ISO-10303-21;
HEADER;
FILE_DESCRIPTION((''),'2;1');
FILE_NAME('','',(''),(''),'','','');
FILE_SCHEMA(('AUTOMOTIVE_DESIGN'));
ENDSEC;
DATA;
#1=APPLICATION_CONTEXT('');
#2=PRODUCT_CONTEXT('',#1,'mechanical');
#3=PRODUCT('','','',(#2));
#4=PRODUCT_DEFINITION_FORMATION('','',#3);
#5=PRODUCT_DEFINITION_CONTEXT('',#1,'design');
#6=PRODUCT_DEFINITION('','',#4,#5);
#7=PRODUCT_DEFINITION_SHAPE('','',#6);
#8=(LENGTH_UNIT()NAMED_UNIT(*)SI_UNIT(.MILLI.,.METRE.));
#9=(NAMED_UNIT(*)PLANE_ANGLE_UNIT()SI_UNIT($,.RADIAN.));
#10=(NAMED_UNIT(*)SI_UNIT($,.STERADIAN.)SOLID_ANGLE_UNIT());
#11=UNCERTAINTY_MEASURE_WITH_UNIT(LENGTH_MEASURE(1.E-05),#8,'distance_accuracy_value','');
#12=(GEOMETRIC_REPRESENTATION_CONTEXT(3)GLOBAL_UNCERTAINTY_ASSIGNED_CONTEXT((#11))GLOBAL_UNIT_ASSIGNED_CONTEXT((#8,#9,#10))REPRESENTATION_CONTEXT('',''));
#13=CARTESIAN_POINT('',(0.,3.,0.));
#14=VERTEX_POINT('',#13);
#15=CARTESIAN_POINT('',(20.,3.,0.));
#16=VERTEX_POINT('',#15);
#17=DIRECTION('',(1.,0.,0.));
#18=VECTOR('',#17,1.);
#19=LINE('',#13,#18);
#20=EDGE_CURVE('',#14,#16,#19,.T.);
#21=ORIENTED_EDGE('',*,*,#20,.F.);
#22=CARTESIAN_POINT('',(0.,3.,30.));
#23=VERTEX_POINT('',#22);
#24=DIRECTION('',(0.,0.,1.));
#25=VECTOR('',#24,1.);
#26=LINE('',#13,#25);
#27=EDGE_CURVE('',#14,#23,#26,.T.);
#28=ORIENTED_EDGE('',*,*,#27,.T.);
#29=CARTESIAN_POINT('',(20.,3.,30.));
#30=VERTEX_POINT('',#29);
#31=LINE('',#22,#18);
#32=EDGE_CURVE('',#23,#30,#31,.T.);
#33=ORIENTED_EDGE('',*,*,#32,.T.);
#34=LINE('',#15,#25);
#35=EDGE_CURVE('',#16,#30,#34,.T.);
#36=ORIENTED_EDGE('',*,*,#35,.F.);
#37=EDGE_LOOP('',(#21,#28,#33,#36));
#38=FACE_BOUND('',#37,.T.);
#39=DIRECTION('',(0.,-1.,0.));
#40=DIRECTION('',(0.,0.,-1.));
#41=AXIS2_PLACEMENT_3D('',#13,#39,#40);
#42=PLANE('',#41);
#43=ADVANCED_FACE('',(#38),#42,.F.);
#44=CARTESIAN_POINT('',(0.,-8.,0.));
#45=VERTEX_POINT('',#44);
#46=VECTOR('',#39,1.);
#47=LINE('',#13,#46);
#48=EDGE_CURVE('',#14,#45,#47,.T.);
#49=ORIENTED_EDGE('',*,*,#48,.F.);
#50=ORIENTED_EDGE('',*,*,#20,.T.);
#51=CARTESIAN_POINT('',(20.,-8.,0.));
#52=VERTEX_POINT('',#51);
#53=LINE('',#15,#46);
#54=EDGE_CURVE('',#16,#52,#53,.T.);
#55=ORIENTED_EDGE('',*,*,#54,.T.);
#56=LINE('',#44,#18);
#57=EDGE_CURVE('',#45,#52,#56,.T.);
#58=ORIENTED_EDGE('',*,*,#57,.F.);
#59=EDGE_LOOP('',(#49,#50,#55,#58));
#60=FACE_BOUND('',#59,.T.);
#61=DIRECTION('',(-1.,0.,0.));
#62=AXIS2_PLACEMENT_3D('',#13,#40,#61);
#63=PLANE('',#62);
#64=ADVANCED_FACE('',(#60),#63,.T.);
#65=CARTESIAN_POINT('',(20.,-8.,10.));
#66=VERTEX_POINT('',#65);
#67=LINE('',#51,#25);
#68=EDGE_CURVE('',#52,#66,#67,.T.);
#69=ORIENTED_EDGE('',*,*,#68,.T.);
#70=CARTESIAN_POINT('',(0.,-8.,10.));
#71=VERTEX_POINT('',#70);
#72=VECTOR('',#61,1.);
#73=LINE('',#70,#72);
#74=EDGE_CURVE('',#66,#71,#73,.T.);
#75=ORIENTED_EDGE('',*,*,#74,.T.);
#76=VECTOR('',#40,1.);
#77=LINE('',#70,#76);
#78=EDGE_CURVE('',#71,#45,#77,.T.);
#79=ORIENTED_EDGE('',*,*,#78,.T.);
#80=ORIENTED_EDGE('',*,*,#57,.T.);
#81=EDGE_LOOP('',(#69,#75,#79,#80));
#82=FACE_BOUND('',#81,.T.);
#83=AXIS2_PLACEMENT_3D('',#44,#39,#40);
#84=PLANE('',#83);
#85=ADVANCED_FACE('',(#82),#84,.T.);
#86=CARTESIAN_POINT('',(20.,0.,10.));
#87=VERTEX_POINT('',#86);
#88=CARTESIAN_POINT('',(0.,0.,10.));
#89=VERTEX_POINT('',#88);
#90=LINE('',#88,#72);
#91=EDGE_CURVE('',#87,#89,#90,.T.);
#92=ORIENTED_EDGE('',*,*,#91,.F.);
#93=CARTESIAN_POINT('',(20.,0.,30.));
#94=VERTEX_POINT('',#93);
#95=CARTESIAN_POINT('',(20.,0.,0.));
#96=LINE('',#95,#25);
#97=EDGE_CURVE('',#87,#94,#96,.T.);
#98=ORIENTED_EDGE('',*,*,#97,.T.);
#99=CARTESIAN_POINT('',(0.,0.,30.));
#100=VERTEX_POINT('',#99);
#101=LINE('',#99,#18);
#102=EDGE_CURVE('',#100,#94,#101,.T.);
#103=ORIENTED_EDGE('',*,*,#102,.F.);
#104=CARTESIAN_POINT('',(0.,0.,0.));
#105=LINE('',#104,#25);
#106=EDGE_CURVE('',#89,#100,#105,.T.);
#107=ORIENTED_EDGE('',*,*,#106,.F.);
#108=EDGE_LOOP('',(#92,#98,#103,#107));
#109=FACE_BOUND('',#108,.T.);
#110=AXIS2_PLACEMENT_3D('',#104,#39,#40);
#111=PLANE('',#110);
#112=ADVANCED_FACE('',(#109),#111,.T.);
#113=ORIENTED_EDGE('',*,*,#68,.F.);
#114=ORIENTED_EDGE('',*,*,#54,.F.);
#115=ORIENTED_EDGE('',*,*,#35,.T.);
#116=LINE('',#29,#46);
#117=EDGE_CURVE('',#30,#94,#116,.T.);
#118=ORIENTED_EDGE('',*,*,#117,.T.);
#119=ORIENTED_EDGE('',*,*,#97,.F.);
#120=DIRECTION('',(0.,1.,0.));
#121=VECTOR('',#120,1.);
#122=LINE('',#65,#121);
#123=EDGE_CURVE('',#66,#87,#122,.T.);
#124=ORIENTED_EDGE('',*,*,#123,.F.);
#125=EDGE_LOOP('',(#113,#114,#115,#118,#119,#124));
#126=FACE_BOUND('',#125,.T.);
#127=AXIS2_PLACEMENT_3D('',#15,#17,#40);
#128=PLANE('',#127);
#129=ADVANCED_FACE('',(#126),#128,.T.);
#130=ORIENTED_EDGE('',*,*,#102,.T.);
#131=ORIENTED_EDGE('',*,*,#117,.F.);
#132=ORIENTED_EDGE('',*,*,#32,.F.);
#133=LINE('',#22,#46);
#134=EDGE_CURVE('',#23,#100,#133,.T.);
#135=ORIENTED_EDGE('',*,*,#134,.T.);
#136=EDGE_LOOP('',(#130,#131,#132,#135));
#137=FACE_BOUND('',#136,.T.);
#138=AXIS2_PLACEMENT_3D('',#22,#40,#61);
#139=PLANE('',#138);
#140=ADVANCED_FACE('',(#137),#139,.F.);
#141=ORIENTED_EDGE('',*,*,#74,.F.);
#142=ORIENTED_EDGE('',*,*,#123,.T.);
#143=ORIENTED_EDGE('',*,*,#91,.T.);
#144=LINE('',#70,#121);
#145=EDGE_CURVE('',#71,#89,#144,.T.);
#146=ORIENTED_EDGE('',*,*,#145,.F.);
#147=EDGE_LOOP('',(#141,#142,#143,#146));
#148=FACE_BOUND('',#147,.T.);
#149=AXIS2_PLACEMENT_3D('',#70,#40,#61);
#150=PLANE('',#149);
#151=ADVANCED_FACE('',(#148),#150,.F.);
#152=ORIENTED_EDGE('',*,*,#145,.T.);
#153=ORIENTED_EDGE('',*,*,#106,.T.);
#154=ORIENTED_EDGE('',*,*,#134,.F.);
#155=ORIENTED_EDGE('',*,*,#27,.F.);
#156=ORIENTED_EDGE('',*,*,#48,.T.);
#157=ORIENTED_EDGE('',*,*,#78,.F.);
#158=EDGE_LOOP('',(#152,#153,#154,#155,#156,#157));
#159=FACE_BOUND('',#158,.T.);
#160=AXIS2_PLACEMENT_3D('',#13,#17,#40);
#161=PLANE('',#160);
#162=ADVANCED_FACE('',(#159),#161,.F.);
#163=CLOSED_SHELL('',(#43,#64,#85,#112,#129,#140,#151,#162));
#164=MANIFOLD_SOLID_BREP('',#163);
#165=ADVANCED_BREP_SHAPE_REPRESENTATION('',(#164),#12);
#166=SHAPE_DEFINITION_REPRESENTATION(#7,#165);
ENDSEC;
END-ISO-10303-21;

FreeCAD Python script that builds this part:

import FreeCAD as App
import Part
import Sketcher

V = App.Vector

doc = App.newDocument("Part")
body = doc.addObject("PartDesign::Body", "Body")

sketch1 = body.newObject("Sketcher::SketchObject", "Sketch")
sketch1.AttachmentSupport = (doc.getObject("XZ_Plane"), [""])
sketch1.MapMode = "FlatFace"
sketch1.addGeometry(Part.LineSegment(V(0, 0, 0), V(0, 30, 0)), False)
sketch1.addGeometry(Part.LineSegment(V(0, 30, 0), V(20, 30, 0)), False)
sketch1.addGeometry(Part.LineSegment(V(20, 30, 0), V(20, 0, 0)), False)
sketch1.addGeometry(Part.LineSegment(V(20, 0, 0), V(0, 0, 0)), False)
sketch1.addConstraint(Sketcher.Constraint("Coincident", 0, 2, 1, 1))
sketch1.addConstraint(Sketcher.Constraint("Coincident", 1, 2, 2, 1))
sketch1.addConstraint(Sketcher.Constraint("Coincident", 2, 2, 3, 1))
sketch1.addConstraint(Sketcher.Constraint("Coincident", 3, 2, 0, 1))
sketch1.addConstraint(Sketcher.Constraint("Vertical", 0))
sketch1.addConstraint(Sketcher.Constraint("Horizontal", 1))
sketch1.addConstraint(Sketcher.Constraint("Vertical", 2))
sketch1.addConstraint(Sketcher.Constraint("Horizontal", 3))
sketch1.addConstraint(Sketcher.Constraint("Coincident", 3, 2, -1, 1))
sketch1.addConstraint(Sketcher.Constraint("DistanceX", 1, 1, 1, 2, 20.0))
sketch1.addConstraint(Sketcher.Constraint("DistanceY", 0, 1, 0, 2, 30.0))
pad1 = body.newObject("PartDesign::Pad", "Pad")
pad1.Profile = sketch1
pad1.Length = 3
pad1.Reversed = True

sketch2 = body.newObject("Sketcher::SketchObject", "Sketch001")
sketch2.AttachmentSupport = (doc.getObject("XZ_Plane"), [""])
sketch2.MapMode = "FlatFace"
sketch2.addGeometry(Part.LineSegment(V(0, 10, 0), V(0, 0, 0)), False)
sketch2.addGeometry(Part.LineSegment(V(0, 0, 0), V(20, 0, 0)), False)
sketch2.addGeometry(Part.LineSegment(V(20, 0, 0), V(20, 10, 0)), False)
sketch2.addGeometry(Part.LineSegment(V(20, 10, 0), V(0, 10, 0)), False)
sketch2.addConstraint(Sketcher.Constraint("Coincident", 0, 2, 1, 1))
sketch2.addConstraint(Sketcher.Constraint("Coincident", 1, 2, 2, 1))
sketch2.addConstraint(Sketcher.Constraint("Coincident", 2, 2, 3, 1))
sketch2.addConstraint(Sketcher.Constraint("Coincident", 3, 2, 0, 1))
sketch2.addConstraint(Sketcher.Constraint("Vertical", 0))
sketch2.addConstraint(Sketcher.Constraint("Horizontal", 1))
sketch2.addConstraint(Sketcher.Constraint("Vertical", 2))
sketch2.addConstraint(Sketcher.Constraint("Horizontal", 3))
sketch2.addConstraint(Sketcher.Constraint("Coincident", 0, 2, -1, 1))
sketch2.addConstraint(Sketcher.Constraint("DistanceX", 1, 1, 1, 2, 20.0))
sketch2.addConstraint(Sketcher.Constraint("DistanceY", 0, 2, 0, 1, 10.0))
pad2 = body.newObject("PartDesign::Pad", "Pad001")
pad2.Profile = sketch2
pad2.Length = 8

doc.recompute()
